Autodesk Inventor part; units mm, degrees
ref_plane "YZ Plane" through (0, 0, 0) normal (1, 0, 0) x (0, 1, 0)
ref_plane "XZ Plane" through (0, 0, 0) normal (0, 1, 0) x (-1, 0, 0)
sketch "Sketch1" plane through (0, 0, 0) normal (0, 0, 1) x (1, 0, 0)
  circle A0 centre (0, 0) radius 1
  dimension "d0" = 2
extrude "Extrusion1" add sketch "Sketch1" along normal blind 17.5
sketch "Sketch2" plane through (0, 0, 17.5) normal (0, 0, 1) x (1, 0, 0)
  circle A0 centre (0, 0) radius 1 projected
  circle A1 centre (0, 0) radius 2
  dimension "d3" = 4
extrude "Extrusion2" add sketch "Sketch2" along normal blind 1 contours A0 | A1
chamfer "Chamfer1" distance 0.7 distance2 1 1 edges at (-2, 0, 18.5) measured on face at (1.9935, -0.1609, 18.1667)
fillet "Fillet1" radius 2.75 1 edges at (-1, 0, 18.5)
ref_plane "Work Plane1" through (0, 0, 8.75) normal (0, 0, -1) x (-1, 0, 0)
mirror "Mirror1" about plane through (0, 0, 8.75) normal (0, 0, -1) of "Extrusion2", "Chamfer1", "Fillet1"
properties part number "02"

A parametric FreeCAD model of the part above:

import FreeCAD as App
import Part
import Sketcher
from FreeCAD import Vector
Q = App.Units.Quantity


def edges_at(feature, points):
    """Names of the edges that pass closest to the given points."""
    edges = feature.Shape.Edges
    near = lambda p: min(range(len(edges)), key=lambda i: edges[i].distToShape(Part.Vertex(*p))[0])
    return sorted({f"Edge{near(p) + 1}" for p in points})

doc = App.newDocument("Part")
body = doc.addObject("PartDesign::Body", "Body")

sketch1 = body.newObject("Sketcher::SketchObject", "Sketch")
sketch1.AttachmentSupport = (doc.getObject("XY_Plane"), [""])
sketch1.MapMode = "FlatFace"
sketch1.addGeometry(Part.Circle(Vector(0, 0, 0), Vector(0, 0, 1), 1), False)
sketch1.addConstraint(Sketcher.Constraint("Coincident", 0, 3, -1, 1))
sketch1.addConstraint(Sketcher.Constraint("Diameter", 0, Q("2 mm")))
pad1 = body.newObject("PartDesign::Pad", "Pad")
pad1.Profile = sketch1
pad1.Length = 17.5

sketch2 = body.newObject("Sketcher::SketchObject", "Sketch001")
sketch2.AttachmentSupport = (doc.getObject("XY_Plane"), [""])
sketch2.MapMode = "FlatFace"
sketch2.AttachmentOffset = App.Placement(Vector(0, 0, 17.5), App.Rotation())
sketch2.addGeometry(Part.Circle(Vector(0, 0, 0), Vector(0, 0, 1), 2), False)
sketch2.addConstraint(Sketcher.Constraint("Coincident", 0, 3, -1, 1))
sketch2.addConstraint(Sketcher.Constraint("Diameter", 0, Q("4 mm")))
pad2 = body.newObject("PartDesign::Pad", "Pad001")
pad2.Profile = sketch2
pad2.Length = 1
doc.recompute()

chamfer = body.newObject("PartDesign::Chamfer", "Chamfer")
chamfer.Base = (pad2, edges_at(pad2, [(-2, 0, 18.5)]))
chamfer.ChamferType = "Two distances"
chamfer.Size = 0.7
chamfer.Size2 = 1
doc.recompute()

fillet = body.newObject("PartDesign::Fillet", "Fillet")
fillet.Base = (chamfer, edges_at(chamfer, [(-1, 0, 18.5)]))
fillet.Radius = 2.75
doc.recompute()

datumplane = body.newObject("PartDesign::Plane", "DatumPlane")
datumplane.AttachmentSupport = (doc.getObject("XY_Plane"), [""])
datumplane.MapMode = "FlatFace"
datumplane.AttachmentOffset = App.Placement(Vector(0, 0, 8.75), App.Rotation())
mirrored = body.newObject("PartDesign::Mirrored", "Mirrored")
mirrored.Originals = [pad2, chamfer, fillet]
mirrored.MirrorPlane = (datumplane, [""])
body.Tip = mirrored

doc.recompute()
